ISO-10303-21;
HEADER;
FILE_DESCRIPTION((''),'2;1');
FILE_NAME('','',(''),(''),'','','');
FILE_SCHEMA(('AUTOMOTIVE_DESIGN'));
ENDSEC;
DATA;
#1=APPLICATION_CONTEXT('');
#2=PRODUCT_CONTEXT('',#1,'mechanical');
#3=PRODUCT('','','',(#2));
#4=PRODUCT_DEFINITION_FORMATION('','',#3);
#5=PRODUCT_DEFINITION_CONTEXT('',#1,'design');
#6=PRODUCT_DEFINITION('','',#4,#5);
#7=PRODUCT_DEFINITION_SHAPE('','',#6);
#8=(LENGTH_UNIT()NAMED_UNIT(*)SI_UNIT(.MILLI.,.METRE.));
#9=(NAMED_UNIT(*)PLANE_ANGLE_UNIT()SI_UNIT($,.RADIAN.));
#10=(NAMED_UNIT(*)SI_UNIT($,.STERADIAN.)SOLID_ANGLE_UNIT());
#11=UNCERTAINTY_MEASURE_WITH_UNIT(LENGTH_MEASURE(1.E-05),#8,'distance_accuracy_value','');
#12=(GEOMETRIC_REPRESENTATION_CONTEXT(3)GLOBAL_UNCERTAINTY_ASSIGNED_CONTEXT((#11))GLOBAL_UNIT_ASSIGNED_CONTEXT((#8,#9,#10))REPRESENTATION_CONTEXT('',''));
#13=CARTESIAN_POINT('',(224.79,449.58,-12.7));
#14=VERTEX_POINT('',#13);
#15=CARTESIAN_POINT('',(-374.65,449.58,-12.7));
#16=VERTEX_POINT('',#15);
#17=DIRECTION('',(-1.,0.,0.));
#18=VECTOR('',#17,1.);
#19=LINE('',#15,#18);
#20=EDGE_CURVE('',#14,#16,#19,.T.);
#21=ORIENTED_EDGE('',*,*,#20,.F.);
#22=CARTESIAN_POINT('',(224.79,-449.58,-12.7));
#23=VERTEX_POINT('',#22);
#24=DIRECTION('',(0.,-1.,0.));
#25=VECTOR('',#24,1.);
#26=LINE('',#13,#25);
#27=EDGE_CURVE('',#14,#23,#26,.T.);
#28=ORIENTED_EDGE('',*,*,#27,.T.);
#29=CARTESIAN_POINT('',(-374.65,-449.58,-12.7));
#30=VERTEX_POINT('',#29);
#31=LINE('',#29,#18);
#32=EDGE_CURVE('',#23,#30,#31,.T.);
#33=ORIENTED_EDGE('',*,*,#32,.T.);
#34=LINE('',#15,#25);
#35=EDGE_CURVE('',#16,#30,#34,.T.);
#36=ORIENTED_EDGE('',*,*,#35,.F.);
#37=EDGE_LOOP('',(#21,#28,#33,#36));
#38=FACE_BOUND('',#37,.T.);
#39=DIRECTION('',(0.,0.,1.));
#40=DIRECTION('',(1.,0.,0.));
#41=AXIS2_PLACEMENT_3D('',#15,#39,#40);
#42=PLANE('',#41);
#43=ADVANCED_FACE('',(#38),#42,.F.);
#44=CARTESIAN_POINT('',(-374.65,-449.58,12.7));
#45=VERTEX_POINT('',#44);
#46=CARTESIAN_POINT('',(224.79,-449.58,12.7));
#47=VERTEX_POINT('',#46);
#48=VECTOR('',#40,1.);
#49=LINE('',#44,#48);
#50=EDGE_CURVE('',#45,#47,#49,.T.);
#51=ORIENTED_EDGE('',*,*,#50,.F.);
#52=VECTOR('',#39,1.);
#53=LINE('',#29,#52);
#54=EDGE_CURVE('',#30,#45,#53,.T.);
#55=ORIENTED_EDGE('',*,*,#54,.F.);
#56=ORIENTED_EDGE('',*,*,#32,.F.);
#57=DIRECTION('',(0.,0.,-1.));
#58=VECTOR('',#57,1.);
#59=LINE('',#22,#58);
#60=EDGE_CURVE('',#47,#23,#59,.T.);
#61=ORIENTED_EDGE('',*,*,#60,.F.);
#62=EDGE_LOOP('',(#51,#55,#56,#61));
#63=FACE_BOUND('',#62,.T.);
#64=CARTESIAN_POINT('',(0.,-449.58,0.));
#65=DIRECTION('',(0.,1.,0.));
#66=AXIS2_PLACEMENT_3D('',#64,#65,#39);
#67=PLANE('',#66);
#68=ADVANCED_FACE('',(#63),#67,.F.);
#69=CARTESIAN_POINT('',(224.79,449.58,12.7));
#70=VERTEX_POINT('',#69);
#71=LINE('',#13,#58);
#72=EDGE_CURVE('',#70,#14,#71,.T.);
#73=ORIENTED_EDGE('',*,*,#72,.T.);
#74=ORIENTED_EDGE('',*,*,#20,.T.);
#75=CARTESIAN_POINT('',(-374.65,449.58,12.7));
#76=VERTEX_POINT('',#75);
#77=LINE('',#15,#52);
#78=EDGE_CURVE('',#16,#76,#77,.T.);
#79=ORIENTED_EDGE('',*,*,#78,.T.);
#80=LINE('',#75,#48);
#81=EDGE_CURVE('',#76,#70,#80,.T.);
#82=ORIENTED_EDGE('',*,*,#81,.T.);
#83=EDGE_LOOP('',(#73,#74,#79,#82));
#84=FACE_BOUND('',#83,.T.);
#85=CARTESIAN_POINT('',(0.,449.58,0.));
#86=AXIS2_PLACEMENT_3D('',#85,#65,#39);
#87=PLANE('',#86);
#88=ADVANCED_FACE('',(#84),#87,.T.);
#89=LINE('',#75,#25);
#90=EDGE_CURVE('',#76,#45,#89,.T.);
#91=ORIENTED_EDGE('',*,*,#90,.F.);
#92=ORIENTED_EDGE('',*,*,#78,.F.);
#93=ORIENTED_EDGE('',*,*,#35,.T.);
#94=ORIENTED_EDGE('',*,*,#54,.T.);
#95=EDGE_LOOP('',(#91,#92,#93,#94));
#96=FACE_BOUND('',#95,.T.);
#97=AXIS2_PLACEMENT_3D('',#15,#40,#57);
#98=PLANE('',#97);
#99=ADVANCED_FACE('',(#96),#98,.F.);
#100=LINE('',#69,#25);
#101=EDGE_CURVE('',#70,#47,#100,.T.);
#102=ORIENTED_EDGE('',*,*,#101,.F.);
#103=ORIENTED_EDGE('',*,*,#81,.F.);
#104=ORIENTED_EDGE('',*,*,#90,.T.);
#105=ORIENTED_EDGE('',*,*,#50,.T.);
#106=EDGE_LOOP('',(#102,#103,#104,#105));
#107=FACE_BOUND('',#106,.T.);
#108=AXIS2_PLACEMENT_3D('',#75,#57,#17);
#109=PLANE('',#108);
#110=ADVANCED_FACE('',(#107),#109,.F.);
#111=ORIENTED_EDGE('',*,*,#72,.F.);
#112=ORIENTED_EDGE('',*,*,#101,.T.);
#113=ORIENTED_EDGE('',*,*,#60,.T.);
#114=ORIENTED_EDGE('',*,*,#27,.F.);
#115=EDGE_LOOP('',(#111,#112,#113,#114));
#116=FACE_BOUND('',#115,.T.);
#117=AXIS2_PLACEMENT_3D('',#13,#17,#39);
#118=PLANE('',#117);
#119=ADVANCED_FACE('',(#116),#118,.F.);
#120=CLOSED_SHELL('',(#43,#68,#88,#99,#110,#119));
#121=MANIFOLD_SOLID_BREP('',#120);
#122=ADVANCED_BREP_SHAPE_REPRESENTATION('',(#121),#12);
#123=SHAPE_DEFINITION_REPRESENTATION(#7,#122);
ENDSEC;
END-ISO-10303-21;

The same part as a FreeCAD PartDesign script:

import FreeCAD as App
import Part
import Sketcher
Q = App.Units.Quantity

doc = App.newDocument("Part")
body = doc.addObject("PartDesign::Body", "Body")

# Sketch on XZ plane
sketch1 = body.newObject("Sketcher::SketchObject", "Sketch")
sketch1.AttachmentSupport = (doc.getObject("XZ_Plane"), [""])
sketch1.MapMode = "FlatFace"
sketch1.addGeometry(Part.LineSegment(App.Vector(-375, -13, 0), App.Vector(-375, 13, 0)), False)
sketch1.addGeometry(Part.LineSegment(App.Vector(-375, 13, 0), App.Vector(225, 13, 0)), False)
sketch1.addGeometry(Part.LineSegment(App.Vector(225, 13, 0), App.Vector(225, -13, 0)), False)
sketch1.addGeometry(Part.LineSegment(App.Vector(225, -13, 0), App.Vector(-375, -13, 0)), False)
sketch1.addConstraint(Sketcher.Constraint("Coincident", 0, 2, 1, 1))
sketch1.addConstraint(Sketcher.Constraint("Coincident", 1, 2, 2, 1))
sketch1.addConstraint(Sketcher.Constraint("Coincident", 2, 2, 3, 1))
sketch1.addConstraint(Sketcher.Constraint("Coincident", 3, 2, 0, 1))
sketch1.addConstraint(Sketcher.Constraint("Vertical", 0))
sketch1.addConstraint(Sketcher.Constraint("Horizontal", 1))
sketch1.addConstraint(Sketcher.Constraint("Vertical", 2))
sketch1.addConstraint(Sketcher.Constraint("Horizontal", 3))
sketch1.addConstraint(Sketcher.Constraint("DistanceY", 0, 1, 0, 2, Q("1 in")))
sketch1.addConstraint(Sketcher.Constraint("DistanceX", 1, 1, 1, 2, Q("23.6 in")))
sketch1.addConstraint(Sketcher.Constraint("DistanceY", -1, 1, 0, 2, Q("0.5 in")))
sketch1.addConstraint(Sketcher.Constraint("DistanceX", 0, 2, -1, 1, Q("14.75 in")))
pad1 = body.newObject("PartDesign::Pad", "Pad")
pad1.Profile = sketch1
pad1.Length = Q("35.4 in")
pad1.Midplane = True

doc.recompute()
